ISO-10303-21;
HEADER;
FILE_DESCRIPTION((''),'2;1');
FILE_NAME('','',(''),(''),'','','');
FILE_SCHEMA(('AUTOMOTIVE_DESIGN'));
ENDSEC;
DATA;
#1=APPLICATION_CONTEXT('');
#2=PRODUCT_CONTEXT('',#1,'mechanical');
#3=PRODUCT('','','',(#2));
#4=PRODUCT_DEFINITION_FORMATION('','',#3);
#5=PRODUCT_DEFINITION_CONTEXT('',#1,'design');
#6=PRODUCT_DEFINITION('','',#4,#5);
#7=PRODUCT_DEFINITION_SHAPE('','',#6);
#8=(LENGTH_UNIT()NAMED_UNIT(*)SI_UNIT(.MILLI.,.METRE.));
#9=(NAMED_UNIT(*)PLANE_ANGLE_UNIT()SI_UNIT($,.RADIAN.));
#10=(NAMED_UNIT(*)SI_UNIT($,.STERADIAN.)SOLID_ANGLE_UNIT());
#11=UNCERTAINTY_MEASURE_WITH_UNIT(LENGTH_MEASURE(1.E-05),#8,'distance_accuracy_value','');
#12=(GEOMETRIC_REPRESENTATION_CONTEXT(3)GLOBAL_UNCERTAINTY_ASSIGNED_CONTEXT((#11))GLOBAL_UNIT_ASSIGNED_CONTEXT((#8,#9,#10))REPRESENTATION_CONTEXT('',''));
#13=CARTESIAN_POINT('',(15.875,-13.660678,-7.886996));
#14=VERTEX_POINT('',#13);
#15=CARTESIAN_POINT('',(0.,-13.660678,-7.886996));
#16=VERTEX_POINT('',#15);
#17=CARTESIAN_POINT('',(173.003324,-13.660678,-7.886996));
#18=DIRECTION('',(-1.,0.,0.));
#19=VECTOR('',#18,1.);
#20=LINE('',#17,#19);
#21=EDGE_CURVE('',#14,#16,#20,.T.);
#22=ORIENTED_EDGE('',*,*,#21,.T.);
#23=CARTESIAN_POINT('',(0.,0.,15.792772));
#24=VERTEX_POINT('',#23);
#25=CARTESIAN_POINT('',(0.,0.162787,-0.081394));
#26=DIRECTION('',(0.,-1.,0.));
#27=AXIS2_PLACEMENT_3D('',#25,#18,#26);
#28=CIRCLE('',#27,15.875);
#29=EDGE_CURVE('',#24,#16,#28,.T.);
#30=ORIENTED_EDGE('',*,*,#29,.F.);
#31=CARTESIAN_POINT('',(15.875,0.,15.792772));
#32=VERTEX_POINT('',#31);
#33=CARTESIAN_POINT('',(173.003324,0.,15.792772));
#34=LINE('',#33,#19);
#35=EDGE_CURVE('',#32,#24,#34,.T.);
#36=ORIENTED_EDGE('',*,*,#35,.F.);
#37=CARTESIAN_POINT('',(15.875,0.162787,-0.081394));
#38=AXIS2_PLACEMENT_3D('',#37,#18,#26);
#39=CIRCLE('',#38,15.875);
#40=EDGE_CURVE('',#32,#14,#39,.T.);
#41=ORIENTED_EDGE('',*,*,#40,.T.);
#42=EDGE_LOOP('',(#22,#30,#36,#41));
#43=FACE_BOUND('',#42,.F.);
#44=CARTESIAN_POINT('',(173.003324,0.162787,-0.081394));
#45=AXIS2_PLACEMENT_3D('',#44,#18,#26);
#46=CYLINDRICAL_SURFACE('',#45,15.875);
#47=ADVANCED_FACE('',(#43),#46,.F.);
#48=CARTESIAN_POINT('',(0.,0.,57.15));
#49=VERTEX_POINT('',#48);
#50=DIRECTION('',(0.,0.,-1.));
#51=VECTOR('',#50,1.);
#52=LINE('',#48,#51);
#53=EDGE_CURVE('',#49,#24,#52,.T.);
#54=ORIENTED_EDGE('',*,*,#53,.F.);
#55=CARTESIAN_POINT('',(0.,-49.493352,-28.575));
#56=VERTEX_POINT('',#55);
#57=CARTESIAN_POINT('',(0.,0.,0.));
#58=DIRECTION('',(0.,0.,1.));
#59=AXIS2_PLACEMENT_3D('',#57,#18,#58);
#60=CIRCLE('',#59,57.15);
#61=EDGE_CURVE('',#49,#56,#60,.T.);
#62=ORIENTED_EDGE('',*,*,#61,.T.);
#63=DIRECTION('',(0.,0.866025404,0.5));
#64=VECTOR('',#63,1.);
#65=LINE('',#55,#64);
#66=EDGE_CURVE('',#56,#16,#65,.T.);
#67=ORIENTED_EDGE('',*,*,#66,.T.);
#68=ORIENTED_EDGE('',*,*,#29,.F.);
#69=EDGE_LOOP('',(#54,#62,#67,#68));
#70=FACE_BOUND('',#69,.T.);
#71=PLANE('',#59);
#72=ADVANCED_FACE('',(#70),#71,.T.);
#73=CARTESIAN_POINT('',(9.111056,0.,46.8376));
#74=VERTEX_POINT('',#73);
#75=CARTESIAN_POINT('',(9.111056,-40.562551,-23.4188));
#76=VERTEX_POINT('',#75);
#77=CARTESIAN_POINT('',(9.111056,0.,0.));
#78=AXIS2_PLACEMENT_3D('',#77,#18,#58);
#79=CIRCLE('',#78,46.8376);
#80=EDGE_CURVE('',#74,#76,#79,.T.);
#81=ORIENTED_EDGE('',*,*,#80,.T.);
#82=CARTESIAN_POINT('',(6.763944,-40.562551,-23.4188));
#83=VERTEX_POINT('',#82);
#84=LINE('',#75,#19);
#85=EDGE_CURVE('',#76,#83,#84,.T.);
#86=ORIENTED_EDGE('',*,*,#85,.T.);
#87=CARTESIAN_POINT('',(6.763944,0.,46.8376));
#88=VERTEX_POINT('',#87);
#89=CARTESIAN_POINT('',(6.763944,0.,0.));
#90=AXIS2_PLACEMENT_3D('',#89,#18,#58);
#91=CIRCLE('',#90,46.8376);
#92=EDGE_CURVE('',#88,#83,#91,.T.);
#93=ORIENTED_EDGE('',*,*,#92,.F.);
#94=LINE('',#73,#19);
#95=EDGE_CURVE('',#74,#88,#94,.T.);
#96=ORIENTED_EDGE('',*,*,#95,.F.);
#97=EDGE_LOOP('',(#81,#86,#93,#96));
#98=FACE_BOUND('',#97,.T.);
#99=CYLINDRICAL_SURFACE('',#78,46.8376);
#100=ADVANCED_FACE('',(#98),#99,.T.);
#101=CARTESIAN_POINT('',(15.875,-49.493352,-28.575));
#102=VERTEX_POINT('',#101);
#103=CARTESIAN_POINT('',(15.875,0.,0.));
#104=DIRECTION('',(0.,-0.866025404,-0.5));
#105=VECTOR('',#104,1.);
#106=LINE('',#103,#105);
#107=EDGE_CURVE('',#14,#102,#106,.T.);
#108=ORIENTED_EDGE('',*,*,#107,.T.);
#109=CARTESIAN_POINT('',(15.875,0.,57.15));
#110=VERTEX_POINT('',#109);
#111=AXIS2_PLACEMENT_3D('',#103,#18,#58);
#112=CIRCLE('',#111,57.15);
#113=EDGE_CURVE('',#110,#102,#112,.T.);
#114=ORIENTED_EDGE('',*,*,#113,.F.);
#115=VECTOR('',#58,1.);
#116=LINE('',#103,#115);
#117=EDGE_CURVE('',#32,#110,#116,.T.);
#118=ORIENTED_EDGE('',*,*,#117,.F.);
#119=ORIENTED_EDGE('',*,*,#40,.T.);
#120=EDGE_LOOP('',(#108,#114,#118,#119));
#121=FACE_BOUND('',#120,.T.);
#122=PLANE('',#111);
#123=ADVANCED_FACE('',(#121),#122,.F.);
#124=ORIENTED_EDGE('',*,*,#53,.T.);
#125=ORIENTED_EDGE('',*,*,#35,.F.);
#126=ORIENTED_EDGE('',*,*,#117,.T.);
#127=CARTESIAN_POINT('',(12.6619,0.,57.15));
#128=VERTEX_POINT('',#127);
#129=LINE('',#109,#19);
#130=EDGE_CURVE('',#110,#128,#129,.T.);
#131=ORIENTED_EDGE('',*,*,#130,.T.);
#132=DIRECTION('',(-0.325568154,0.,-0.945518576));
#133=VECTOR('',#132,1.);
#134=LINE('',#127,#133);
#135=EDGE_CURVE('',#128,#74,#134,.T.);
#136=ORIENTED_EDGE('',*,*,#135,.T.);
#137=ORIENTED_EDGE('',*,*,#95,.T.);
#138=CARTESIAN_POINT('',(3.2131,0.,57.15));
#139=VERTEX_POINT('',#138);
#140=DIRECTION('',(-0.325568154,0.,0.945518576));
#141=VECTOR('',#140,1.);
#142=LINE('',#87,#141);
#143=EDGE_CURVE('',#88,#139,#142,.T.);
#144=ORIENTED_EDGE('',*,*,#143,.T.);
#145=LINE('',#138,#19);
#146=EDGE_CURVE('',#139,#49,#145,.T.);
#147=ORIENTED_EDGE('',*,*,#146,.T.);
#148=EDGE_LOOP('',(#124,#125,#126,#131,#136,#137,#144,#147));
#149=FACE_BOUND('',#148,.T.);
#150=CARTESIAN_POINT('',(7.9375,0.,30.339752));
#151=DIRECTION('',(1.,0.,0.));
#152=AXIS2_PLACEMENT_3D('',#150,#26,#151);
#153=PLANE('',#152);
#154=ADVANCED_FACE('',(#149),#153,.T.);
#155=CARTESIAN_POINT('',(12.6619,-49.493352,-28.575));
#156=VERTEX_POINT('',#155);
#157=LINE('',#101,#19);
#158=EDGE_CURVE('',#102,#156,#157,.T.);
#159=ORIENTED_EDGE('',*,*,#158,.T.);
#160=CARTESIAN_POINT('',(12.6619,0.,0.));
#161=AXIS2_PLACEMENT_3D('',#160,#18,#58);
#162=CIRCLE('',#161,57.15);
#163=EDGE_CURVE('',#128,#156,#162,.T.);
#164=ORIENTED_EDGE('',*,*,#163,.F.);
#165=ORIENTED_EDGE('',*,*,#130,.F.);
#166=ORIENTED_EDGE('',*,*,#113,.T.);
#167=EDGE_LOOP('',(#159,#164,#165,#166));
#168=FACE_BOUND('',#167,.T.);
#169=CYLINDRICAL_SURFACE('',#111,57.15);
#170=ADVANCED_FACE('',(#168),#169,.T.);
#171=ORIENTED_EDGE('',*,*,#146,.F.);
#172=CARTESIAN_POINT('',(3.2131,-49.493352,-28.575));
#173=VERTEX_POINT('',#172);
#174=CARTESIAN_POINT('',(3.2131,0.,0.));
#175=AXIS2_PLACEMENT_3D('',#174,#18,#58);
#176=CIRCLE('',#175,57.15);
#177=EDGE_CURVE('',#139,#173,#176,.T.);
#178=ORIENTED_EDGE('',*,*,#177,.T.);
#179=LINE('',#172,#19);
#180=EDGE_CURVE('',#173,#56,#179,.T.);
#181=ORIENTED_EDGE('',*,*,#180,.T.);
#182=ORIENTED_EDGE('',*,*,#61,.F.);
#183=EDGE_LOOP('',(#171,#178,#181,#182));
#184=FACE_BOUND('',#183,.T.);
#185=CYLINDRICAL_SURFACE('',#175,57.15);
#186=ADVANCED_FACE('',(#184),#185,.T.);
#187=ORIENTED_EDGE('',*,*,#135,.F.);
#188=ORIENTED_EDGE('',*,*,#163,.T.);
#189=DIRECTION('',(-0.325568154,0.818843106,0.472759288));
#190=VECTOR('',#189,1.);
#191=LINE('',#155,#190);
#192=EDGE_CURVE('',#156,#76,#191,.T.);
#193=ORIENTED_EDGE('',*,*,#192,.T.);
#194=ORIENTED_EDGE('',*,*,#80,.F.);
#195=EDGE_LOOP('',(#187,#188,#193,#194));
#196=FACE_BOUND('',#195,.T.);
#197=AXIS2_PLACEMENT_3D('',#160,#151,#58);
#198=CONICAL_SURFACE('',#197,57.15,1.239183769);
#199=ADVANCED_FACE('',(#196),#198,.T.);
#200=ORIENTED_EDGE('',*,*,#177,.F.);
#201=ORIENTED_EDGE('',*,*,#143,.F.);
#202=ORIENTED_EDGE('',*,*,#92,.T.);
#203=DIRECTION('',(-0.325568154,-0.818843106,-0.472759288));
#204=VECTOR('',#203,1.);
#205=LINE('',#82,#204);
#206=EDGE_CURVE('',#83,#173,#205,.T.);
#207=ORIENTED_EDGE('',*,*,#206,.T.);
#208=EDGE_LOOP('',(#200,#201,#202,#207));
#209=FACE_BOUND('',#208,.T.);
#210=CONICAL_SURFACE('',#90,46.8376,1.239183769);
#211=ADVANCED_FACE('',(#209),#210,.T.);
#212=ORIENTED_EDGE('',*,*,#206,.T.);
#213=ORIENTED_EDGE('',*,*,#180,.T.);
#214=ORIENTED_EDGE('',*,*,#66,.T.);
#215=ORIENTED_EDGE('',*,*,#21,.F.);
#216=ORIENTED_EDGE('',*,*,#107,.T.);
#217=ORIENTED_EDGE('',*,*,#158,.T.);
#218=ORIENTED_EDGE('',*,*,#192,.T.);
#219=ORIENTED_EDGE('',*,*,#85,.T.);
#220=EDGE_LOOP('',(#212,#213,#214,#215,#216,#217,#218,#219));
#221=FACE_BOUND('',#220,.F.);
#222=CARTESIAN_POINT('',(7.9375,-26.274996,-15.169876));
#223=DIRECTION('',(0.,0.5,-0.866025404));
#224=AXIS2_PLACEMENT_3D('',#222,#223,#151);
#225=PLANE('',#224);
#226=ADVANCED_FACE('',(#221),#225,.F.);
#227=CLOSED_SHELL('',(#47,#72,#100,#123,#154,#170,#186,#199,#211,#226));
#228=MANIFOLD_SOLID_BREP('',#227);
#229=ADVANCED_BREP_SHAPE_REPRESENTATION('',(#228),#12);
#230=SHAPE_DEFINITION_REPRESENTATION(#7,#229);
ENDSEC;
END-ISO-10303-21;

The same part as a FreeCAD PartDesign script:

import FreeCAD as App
import Part
import Sketcher
Q = App.Units.Quantity


def add_polygon(sketch, points):
    """Adds a closed chain of lines whose ends are joined by coincident constraints."""
    first, n = sketch.GeometryCount, len(points)
    for a, b in zip(points, points[1:] + points[:1]):
        sketch.addGeometry(Part.LineSegment(App.Vector(*a, 0), App.Vector(*b, 0)), False)
    for i in range(n):
        sketch.addConstraint(Sketcher.Constraint("Coincident", first + i, 2, first + (i + 1) % n, 1))

doc = App.newDocument("Part")
params = doc.addObject("Spreadsheet::Sheet", "Params")
for row, (alias, value) in enumerate([
    ("sketch1_height", "2.25 in"),
    ("sketch1_width", "0.625 in"),
    ("revolution_angle", "240 deg"),
    ("sketch2_diameter", "1.25 in"),
    ("hole_diameter", "1.25 in"),
], start=1):
    params.set(f"A{row}", alias)
    params.set(f"B{row}", "=" + value)
    params.setAlias(f"B{row}", alias)

body = doc.addObject("PartDesign::Body", "Body")

sketch1 = body.newObject("Sketcher::SketchObject", "Sketch")
sketch1.AttachmentSupport = (doc.getObject("XZ_Plane"), [""])
sketch1.MapMode = "FlatFace"
add_polygon(sketch1, [(0, 57.1), (0, 0), (15.9, 0), (15.9, 57.1), (12.7, 57.1), (9.1, 46.8), (6.8, 46.8), (3.2, 57.1)])
sketch1.addConstraint(Sketcher.Constraint("Vertical", 0))
sketch1.addConstraint(Sketcher.Constraint("Horizontal", 1))
sketch1.addConstraint(Sketcher.Constraint("Vertical", 2))
sketch1.addConstraint(Sketcher.Constraint("Horizontal", 3))
sketch1.addConstraint(Sketcher.Constraint("Horizontal", 5))
sketch1.addConstraint(Sketcher.Constraint("Horizontal", 7))
sketch1.addConstraint(Sketcher.Constraint("Coincident", 0, 2, -1, 1))
sketch1.addConstraint(Sketcher.Constraint("Horizontal", 3, 2, 6, 2))
sketch1.addConstraint(Sketcher.Constraint("Equal", 3, 7))
sketch1.addConstraint(Sketcher.Constraint("Equal", 4, 6))
sketch1.addConstraint(Sketcher.Constraint("Angle", 4, Q("-109 deg")))
sketch1.addConstraint(Sketcher.Constraint("DistanceY", 0, 2, 0, 1, Q("2.25 in")))
sketch1.addConstraint(Sketcher.Constraint("DistanceX", 1, 1, 1, 2, Q("0.625 in")))
sketch1.addConstraint(Sketcher.Constraint("DistanceX", 3, 2, 3, 1, Q("0.1265 in")))
sketch1.addConstraint(Sketcher.Constraint("DistanceY", -1, 1, 4, 2, Q("1.844 in")))
sketch1.setExpression("Constraints[19]", "Params.sketch1_height")
sketch1.setExpression("Constraints[20]", "Params.sketch1_width")
revolution = body.newObject("PartDesign::Revolution", "Revolution")
revolution.Profile = sketch1
revolution.ReferenceAxis = (sketch1, ["H_Axis"])
revolution.setExpression("Angle", "Params.revolution_angle")
revolution.Reversed = True

sketch2 = body.newObject("Sketcher::SketchObject", "Sketch001")
sketch2.AttachmentSupport = (doc.getObject("YZ_Plane"), [""])
sketch2.MapMode = "FlatFace"
sketch2.AttachmentOffset = App.Placement(App.Vector(0, 0, 0.625 * 25.4), App.Rotation())
sketch2.addGeometry(Part.Circle(App.Vector(0, 0, 0), App.Vector(0, 0, 1), 16), False)
sketch2.addConstraint(Sketcher.Constraint("Diameter", 0, Q("1.25 in")))
sketch2.addConstraint(Sketcher.Constraint("DistanceX", -1, 1, 0, 3, Q("0.162787 mm")))
sketch2.addConstraint(Sketcher.Constraint("DistanceY", 0, 3, -1, 1, Q("0.081394 mm")))
sketch2.setExpression("Constraints[0]", "Params.sketch2_diameter")
doc.recompute()
hole = body.newObject("PartDesign::Hole", "Hole")
hole.Profile = sketch2
hole.ThreadType = "None"
hole.setExpression("Diameter", "Params.hole_diameter")
hole.DepthType = "ThroughAll"

doc.recompute()
